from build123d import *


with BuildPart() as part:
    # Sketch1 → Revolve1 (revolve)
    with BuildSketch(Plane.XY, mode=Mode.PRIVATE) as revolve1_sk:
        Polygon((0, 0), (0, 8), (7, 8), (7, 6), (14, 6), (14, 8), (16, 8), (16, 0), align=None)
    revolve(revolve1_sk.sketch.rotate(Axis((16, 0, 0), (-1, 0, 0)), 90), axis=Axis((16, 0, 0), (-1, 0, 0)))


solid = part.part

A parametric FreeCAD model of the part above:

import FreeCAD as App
import Part
import Sketcher

doc = App.newDocument("Part")
params = doc.addObject("Spreadsheet::Sheet", "Params")
for row, (alias, value) in enumerate([
    ("sketch1_width", "16 mm"),
    ("sketch1_width2", "2 mm"),
    ("sketch1_height", "8 mm"),
    ("revolution_angle", "360 deg"),
], start=1):
    params.set(f"A{row}", alias)
    params.set(f"B{row}", "=" + value)
    params.setAlias(f"B{row}", alias)

body = doc.addObject("PartDesign::Body", "Body")

# Sketch on XY plane
sketch1 = body.newObject("Sketcher::SketchObject", "Sketch")
sketch1.AttachmentSupport = (doc.getObject("XY_Plane"), [""])
sketch1.MapMode = "FlatFace"
sketch1.addGeometry([
    Part.LineSegment(App.Vector(0, 8, 0), App.Vector(0, 0, 0)),  # 0
    Part.LineSegment(App.Vector(0, 0, 0), App.Vector(16, 0, 0)),  # 1
    Part.LineSegment(App.Vector(16, 0, 0), App.Vector(16, 8, 0)),  # 2
    Part.LineSegment(App.Vector(16, 8, 0), App.Vector(14, 8, 0)),  # 3
    Part.LineSegment(App.Vector(14, 8, 0), App.Vector(14, 6, 0)),  # 4
    Part.LineSegment(App.Vector(14, 6, 0), App.Vector(7, 6, 0)),  # 5
    Part.LineSegment(App.Vector(7, 6, 0), App.Vector(7, 8, 0)),  # 6
    Part.LineSegment(App.Vector(7, 8, 0), App.Vector(0, 8, 0)),  # 7
], False)
sketch1.addConstraint([
    Sketcher.Constraint("Coincident", 0, 2, 1, 1),
    Sketcher.Constraint("Coincident", 1, 2, 2, 1),
    Sketcher.Constraint("Coincident", 2, 2, 3, 1),
    Sketcher.Constraint("Coincident", 3, 2, 4, 1),
    Sketcher.Constraint("Coincident", 4, 2, 5, 1),
    Sketcher.Constraint("Coincident", 5, 2, 6, 1),
    Sketcher.Constraint("Coincident", 6, 2, 7, 1),
    Sketcher.Constraint("Coincident", 7, 2, 0, 1),
    Sketcher.Constraint("Vertical", 0),
    Sketcher.Constraint("Horizontal", 1),
    Sketcher.Constraint("Vertical", 2),
    Sketcher.Constraint("Horizontal", 3),
    Sketcher.Constraint("Vertical", 4),
    Sketcher.Constraint("Horizontal", 5),
    Sketcher.Constraint("Vertical", 6),
    Sketcher.Constraint("Horizontal", 7),
    Sketcher.Constraint("Coincident", 0, 2, -1, 1),
    Sketcher.Constraint("Horizontal", 3, 2, 6, 2),
    Sketcher.Constraint("Equal", 5, 7),
    Sketcher.Constraint("Equal", 3, 4),
    Sketcher.Constraint("DistanceX", 1, 1, 1, 2, 16.0),
    Sketcher.Constraint("DistanceX", 3, 2, 3, 1, 2.0),
    Sketcher.Constraint("DistanceY", 0, 2, 0, 1, 8.0),
])
sketch1.setExpression("Constraints[20]", "Params.sketch1_width")
sketch1.setExpression("Constraints[21]", "Params.sketch1_width2")
sketch1.setExpression("Constraints[22]", "Params.sketch1_height")
revolution = body.newObject("PartDesign::Revolution", "Revolution")
revolution.Profile = sketch1
revolution.ReferenceAxis = (sketch1, ["H_Axis"])
revolution.setExpression("Angle", "Params.revolution_angle")

doc.recompute()
